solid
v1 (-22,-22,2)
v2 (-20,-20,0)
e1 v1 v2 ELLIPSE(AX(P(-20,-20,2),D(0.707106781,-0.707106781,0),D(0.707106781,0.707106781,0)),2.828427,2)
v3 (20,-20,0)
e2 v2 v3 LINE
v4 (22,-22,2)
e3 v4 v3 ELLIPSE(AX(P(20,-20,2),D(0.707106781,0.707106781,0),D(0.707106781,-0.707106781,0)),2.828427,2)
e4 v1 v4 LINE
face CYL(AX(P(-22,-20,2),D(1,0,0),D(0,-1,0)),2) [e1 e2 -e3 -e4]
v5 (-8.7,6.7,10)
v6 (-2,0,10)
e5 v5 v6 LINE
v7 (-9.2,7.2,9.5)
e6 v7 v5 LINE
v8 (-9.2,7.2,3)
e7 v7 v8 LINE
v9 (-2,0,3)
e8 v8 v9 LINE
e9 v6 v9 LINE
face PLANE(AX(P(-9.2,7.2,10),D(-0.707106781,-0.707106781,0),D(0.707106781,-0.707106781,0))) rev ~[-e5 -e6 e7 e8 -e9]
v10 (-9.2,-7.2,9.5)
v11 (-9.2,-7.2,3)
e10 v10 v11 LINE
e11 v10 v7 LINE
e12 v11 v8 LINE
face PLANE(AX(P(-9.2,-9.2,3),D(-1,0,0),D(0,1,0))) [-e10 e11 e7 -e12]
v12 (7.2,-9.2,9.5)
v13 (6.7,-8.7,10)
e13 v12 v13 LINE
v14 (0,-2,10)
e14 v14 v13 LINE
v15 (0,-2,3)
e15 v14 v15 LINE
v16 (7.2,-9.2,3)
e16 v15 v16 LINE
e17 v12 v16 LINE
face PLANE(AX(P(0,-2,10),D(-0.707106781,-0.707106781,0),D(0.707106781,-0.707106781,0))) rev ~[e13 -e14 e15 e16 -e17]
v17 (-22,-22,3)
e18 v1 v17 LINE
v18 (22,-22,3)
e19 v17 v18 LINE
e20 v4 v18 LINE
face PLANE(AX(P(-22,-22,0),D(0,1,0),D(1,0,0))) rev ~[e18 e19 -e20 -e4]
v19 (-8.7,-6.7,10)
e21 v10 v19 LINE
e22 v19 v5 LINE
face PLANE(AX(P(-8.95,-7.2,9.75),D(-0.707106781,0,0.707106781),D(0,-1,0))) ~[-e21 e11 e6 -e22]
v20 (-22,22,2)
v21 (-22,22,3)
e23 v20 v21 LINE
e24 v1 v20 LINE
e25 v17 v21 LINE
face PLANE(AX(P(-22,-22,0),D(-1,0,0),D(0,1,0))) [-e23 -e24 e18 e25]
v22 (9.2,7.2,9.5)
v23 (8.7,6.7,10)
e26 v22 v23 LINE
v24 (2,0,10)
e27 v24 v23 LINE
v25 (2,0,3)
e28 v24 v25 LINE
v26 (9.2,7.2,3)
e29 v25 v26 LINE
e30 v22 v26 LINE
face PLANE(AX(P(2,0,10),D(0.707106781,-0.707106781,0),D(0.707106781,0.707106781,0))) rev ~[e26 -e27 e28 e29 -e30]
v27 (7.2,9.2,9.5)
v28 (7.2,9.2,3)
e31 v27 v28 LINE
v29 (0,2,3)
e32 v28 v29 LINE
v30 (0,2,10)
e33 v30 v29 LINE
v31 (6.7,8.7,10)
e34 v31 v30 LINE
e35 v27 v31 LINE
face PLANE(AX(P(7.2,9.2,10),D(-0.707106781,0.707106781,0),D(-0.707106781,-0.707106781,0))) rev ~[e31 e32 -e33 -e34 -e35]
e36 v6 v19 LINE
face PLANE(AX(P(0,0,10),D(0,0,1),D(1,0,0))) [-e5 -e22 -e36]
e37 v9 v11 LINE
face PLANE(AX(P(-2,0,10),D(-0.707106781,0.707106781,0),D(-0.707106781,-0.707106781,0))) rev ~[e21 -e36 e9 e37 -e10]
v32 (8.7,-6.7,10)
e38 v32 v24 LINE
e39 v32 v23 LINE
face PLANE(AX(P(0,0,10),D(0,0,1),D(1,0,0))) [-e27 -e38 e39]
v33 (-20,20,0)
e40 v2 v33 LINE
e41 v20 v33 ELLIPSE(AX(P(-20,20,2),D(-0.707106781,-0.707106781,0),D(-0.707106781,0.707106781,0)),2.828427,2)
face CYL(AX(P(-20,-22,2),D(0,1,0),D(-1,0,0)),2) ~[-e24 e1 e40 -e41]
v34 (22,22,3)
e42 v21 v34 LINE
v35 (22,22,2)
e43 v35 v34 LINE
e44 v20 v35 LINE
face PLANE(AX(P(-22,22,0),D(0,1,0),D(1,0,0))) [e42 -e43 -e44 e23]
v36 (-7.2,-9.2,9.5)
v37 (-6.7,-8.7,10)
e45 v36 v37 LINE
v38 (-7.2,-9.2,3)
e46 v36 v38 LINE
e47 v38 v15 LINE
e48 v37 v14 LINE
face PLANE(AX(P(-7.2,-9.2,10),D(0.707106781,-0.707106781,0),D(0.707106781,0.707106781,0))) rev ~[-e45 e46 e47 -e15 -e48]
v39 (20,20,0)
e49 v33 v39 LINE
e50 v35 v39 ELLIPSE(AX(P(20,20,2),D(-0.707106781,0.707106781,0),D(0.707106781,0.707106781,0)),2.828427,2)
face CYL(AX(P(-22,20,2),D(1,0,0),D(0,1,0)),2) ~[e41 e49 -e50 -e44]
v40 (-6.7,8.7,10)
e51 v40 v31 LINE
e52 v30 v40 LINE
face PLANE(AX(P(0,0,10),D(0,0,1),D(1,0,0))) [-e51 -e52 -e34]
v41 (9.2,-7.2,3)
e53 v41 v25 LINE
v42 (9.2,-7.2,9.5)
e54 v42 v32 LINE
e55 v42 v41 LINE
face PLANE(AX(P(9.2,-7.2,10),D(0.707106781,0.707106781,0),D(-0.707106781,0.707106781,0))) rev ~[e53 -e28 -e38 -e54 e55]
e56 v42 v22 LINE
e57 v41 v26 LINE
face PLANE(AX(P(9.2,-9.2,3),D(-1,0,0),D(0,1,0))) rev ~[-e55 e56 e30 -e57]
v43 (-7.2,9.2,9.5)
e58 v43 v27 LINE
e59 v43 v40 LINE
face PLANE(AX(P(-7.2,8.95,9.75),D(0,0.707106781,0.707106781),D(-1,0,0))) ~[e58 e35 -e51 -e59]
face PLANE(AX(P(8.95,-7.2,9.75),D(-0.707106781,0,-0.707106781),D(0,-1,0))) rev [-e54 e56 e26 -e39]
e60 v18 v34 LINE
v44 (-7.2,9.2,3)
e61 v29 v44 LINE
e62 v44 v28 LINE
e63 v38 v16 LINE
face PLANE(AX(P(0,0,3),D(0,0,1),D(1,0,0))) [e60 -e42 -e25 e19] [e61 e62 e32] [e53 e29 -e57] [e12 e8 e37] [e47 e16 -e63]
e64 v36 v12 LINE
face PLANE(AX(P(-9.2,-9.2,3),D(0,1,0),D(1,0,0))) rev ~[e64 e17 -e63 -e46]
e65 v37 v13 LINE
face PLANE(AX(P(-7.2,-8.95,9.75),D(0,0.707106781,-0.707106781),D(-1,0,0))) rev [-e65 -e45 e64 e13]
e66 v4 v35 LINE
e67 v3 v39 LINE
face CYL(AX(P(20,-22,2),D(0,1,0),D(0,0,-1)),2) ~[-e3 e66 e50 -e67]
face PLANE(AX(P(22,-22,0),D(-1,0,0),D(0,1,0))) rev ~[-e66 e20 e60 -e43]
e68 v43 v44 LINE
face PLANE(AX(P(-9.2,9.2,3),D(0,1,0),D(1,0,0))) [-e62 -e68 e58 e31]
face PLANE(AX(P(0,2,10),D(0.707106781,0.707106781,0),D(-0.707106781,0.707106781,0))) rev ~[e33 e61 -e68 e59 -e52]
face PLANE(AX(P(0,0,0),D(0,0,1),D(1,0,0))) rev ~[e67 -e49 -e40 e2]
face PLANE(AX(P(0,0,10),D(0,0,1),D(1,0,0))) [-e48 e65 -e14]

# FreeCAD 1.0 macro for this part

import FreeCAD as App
import Part
import Sketcher
Q = App.Units.Quantity


def edges_at(feature, points):
    """Names of the edges that pass closest to the given points."""
    edges = feature.Shape.Edges
    near = lambda p: min(range(len(edges)), key=lambda i: edges[i].distToShape(Part.Vertex(*p))[0])
    return sorted({f"Edge{near(p) + 1}" for p in points})


def add_polygon(sketch, points):
    """Adds a closed chain of lines whose ends are joined by coincident constraints."""
    first, n = sketch.GeometryCount, len(points)
    for a, b in zip(points, points[1:] + points[:1]):
        sketch.addGeometry(Part.LineSegment(App.Vector(*a, 0), App.Vector(*b, 0)), False)
    for i in range(n):
        sketch.addConstraint(Sketcher.Constraint("Coincident", first + i, 2, first + (i + 1) % n, 1))

doc = App.newDocument("Part")
params = doc.addObject("Spreadsheet::Sheet", "Params")
for row, (alias, value) in enumerate([
    ("sketch1_width", "44 mm"),
    ("pad1_length", "3 mm"),
    ("sketch2_width", "18.4 mm"),
    ("pad2_length", "7 mm"),
    ("sketch3_width", "2 mm"),
    ("pocket1_length", "7 mm"),
    ("fillet_radius", "2 mm"),
    ("chamfer_size", "0.5 mm"),
], start=1):
    params.set(f"A{row}", alias)
    params.set(f"B{row}", "=" + value)
    params.setAlias(f"B{row}", alias)

body = doc.addObject("PartDesign::Body", "Body")

# Sketch on XY plane
sketch1 = body.newObject("Sketcher::SketchObject", "Sketch")
sketch1.AttachmentSupport = (doc.getObject("XY_Plane"), [""])
sketch1.MapMode = "FlatFace"
add_polygon(sketch1, [(-22, 22), (-22, -22), (22, -22), (22, 22)])  # lines 0-3
sketch1.addConstraint([
    Sketcher.Constraint("Vertical", 0),
    Sketcher.Constraint("Horizontal", 1),
    Sketcher.Constraint("Vertical", 2),
    Sketcher.Constraint("Horizontal", 3),
    Sketcher.Constraint("Symmetric", 0, 2, 2, 2, -1, 1),
    Sketcher.Constraint("Equal", 3, 0),
    Sketcher.Constraint("DistanceX", 1, 1, 1, 2, Q("44 mm")),
])
sketch1.setExpression("Constraints[10]", "Params.sketch1_width")
pad1 = body.newObject("PartDesign::Pad", "Pad")
pad1.Profile = sketch1
pad1.setExpression("Length", "Params.pad1_length")

# Sketch on XY plane
sketch2 = body.newObject("Sketcher::SketchObject", "Sketch001")
sketch2.AttachmentSupport = (doc.getObject("XY_Plane"), [""])
sketch2.MapMode = "FlatFace"
sketch2.AttachmentOffset = App.Placement(App.Vector(0, 0, 3), App.Rotation())
add_polygon(sketch2, [(-9, 9), (-9, -9), (9, -9), (9, 9)])  # lines 0-3
sketch2.addConstraint([
    Sketcher.Constraint("Vertical", 0),
    Sketcher.Constraint("Horizontal", 1),
    Sketcher.Constraint("Vertical", 2),
    Sketcher.Constraint("Horizontal", 3),
    Sketcher.Constraint("Symmetric", 0, 2, 2, 2, -1, 1),
    Sketcher.Constraint("Equal", 3, 0),
    Sketcher.Constraint("DistanceX", 1, 1, 1, 2, Q("18.4 mm")),
])
sketch2.setExpression("Constraints[10]", "Params.sketch2_width")
pad2 = body.newObject("PartDesign::Pad", "Pad001")
pad2.Profile = sketch2
pad2.setExpression("Length", "Params.pad2_length")

# Sketch on XY plane
sketch3 = body.newObject("Sketcher::SketchObject", "Sketch002")
sketch3.AttachmentSupport = (doc.getObject("XY_Plane"), [""])
sketch3.MapMode = "FlatFace"
sketch3.AttachmentOffset = App.Placement(App.Vector(0, 0, 10), App.Rotation())
add_polygon(sketch3, [(-9.2, 7.2), (-2, 0), (-9.2, -7.2), (-9.2, -9.2), (-7.2, -9.2), (0, -2), (7.2, -9.2), (9.2, -9.2), (9.2, -7.2), (2, 0), (9.2, 7.2), (9.2, 9.2), (7.2, 9.2), (0, 2), (-7.2, 9.2), (-9.2, 9.2)])  # lines 0-15
sketch3.addConstraint([
    Sketcher.Constraint("Vertical", 2),
    Sketcher.Constraint("Horizontal", 3),
    Sketcher.Constraint("Horizontal", 6),
    Sketcher.Constraint("Vertical", 7),
    Sketcher.Constraint("Vertical", 10),
    Sketcher.Constraint("Horizontal", 11),
    Sketcher.Constraint("Horizontal", 14),
    Sketcher.Constraint("Vertical", 15),
    Sketcher.Constraint("Symmetric", 0, 2, 8, 2, -1, 1),
    Sketcher.Constraint("Symmetric", 1, 2, 9, 2, -1, 1),
    Sketcher.Constraint("Symmetric", 3, 2, 11, 2, -1, 1),
    Sketcher.Constraint("Symmetric", 4, 2, 12, 2, -1, 1),
    Sketcher.Constraint("Symmetric", 5, 2, 13, 2, -1, 1),
    Sketcher.Constraint("Symmetric", 7, 2, 15, 2, -1, 1),
    Sketcher.Constraint("Symmetric", 3, 2, 5, 2, -2),
    Sketcher.Constraint("Symmetric", 1, 2, 7, 2, -2),
    Sketcher.Constraint("PointOnObject", 0, 2, -1),
    Sketcher.Constraint("PointOnObject", 4, 2, -2),
    Sketcher.Constraint("Perpendicular", 0, 1),
    Sketcher.Constraint("Parallel", 1, 4),
    Sketcher.Constraint("Equal", 14, 2),
    Sketcher.Constraint("Equal", 1, 4),
    Sketcher.Constraint("DistanceX", 3, 1, 3, 2, Q("2 mm")),
    Sketcher.Constraint("DistanceX", 1, 2, -1, 1, Q("9.2 mm")),
])
sketch3.setExpression("Constraints[38]", "Params.sketch3_width")
pocket1 = body.newObject("PartDesign::Pocket", "Pocket")
pocket1.Profile = sketch3
pocket1.setExpression("Length", "Params.pocket1_length")
doc.recompute()

fillet = body.newObject("PartDesign::Fillet", "Fillet")
fillet.Base = (pocket1, edges_at(pocket1, [
    (0, -22, 0),
    (-22, 0, 0),
    (0, 22, 0),
    (22, 0, 0),
]))
fillet.setExpression("Radius", "Params.fillet_radius")
doc.recompute()

chamfer = body.newObject("PartDesign::Chamfer", "Chamfer")
chamfer.Base = (fillet, edges_at(fillet, [
    (0, 9.2, 10),
    (-9.2, 0, 10),
    (0, -9.2, 10),
    (9.2, 0, 10),
]))
chamfer.setExpression("Size", "Params.chamfer_size")

doc.recompute()
